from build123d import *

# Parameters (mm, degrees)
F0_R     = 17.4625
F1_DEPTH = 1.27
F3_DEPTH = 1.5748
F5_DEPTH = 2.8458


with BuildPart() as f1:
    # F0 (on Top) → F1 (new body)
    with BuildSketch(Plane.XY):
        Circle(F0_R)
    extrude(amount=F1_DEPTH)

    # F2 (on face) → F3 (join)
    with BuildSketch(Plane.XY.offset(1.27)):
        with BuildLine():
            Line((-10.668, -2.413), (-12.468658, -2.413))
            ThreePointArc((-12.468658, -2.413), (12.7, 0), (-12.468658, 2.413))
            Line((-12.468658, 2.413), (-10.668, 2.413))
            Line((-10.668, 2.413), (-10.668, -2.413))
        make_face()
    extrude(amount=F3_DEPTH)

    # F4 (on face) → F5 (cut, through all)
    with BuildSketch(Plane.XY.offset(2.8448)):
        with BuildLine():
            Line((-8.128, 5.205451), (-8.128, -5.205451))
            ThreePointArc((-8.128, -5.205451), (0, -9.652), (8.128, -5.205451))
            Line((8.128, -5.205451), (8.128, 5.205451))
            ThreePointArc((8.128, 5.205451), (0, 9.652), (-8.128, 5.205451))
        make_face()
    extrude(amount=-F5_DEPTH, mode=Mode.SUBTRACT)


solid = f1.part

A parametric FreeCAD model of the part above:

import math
import FreeCAD as App
import Part
import Sketcher
from FreeCAD import Vector
Q = App.Units.Quantity

doc = App.newDocument("Part")
body = doc.addObject("PartDesign::Body", "Body")

# Sketch on XY plane
sketch1 = body.newObject("Sketcher::SketchObject", "Sketch")
sketch1.AttachmentSupport = (doc.getObject("XY_Plane"), [""])
sketch1.MapMode = "FlatFace"
sketch1.addGeometry(Part.Circle(Vector(0, 0, 0), Vector(0, 0, 1), 17), False)
sketch1.addConstraint(Sketcher.Constraint("Coincident", 0, 3, -1, 1))
sketch1.addConstraint(Sketcher.Constraint("Diameter", 0, Q("1.375 in")))
pad1 = body.newObject("PartDesign::Pad", "Pad")
pad1.Profile = sketch1
pad1.Length = Q("0.05 in")

# Sketch on XY plane
sketch2 = body.newObject("Sketcher::SketchObject", "Sketch001")
sketch2.AttachmentSupport = (doc.getObject("XY_Plane"), [""])
sketch2.MapMode = "FlatFace"
sketch2.AttachmentOffset = App.Placement(Vector(0, 0, 0.05 * 25.4), App.Rotation())
sketch2.addGeometry(Part.LineSegment(Vector(-10.7, -2.4, 0), Vector(-12.5, -2.4, 0)), False)
sketch2.addGeometry(Part.ArcOfCircle(Part.Circle(Vector(0, 0, 0), Vector(0, 0, 1), 12.7), math.radians(-169), math.radians(169)), False)
sketch2.addGeometry(Part.LineSegment(Vector(-12.5, 2.4, 0), Vector(-10.7, 2.4, 0)), False)
sketch2.addGeometry(Part.LineSegment(Vector(-10.7, 2.4, 0), Vector(-10.7, -2.4, 0)), False)
sketch2.addConstraint(Sketcher.Constraint("Coincident", 0, 2, 1, 1))
sketch2.addConstraint(Sketcher.Constraint("Coincident", 1, 2, 2, 1))
sketch2.addConstraint(Sketcher.Constraint("Coincident", 2, 2, 3, 1))
sketch2.addConstraint(Sketcher.Constraint("Coincident", 3, 2, 0, 1))
sketch2.addConstraint(Sketcher.Constraint("Horizontal", 0))
sketch2.addConstraint(Sketcher.Constraint("Horizontal", 2))
sketch2.addConstraint(Sketcher.Constraint("Vertical", 3))
sketch2.addConstraint(Sketcher.Constraint("Coincident", 1, 3, -1, 1))
sketch2.addConstraint(Sketcher.Constraint("Vertical", 0, 2, 1, 2))
sketch2.addConstraint(Sketcher.Constraint("Radius", 1, Q("0.5 in")))
sketch2.addConstraint(Sketcher.Constraint("DistanceY", 3, 2, 3, 1, Q("0.19 in")))
sketch2.addConstraint(Sketcher.Constraint("DistanceX", 2, 2, -1, 1, Q("0.42 in")))
pad2 = body.newObject("PartDesign::Pad", "Pad001")
pad2.Profile = sketch2
pad2.Length = Q("0.062 in")

# Sketch on XY plane
sketch3 = body.newObject("Sketcher::SketchObject", "Sketch002")
sketch3.AttachmentSupport = (doc.getObject("XY_Plane"), [""])
sketch3.MapMode = "FlatFace"
sketch3.AttachmentOffset = App.Placement(Vector(0, 0, 0.112 * 25.4), App.Rotation())
sketch3.addGeometry(Part.LineSegment(Vector(-8, 5, 0), Vector(-8, -5, 0)), False)
sketch3.addGeometry(Part.ArcOfCircle(Part.Circle(Vector(0, 0, 0), Vector(0, 0, 1), 10), math.radians(-147), math.radians(-33)), False)
sketch3.addGeometry(Part.LineSegment(Vector(8, -5, 0), Vector(8, 5, 0)), False)
sketch3.addGeometry(Part.ArcOfCircle(Part.Circle(Vector(0, 0, 0), Vector(0, 0, 1), 10), math.radians(33), math.radians(147)), False)
sketch3.addConstraint(Sketcher.Constraint("Coincident", 0, 2, 1, 1))
sketch3.addConstraint(Sketcher.Constraint("Coincident", 1, 2, 2, 1))
sketch3.addConstraint(Sketcher.Constraint("Coincident", 2, 2, 3, 1))
sketch3.addConstraint(Sketcher.Constraint("Coincident", 3, 2, 0, 1))
sketch3.addConstraint(Sketcher.Constraint("Vertical", 0))
sketch3.addConstraint(Sketcher.Constraint("Vertical", 2))
sketch3.addConstraint(Sketcher.Constraint("Coincident", 1, 3, -1, 1))
sketch3.addConstraint(Sketcher.Constraint("Coincident", 3, 3, -1, 1))
sketch3.addConstraint(Sketcher.Constraint("Equal", 1, 3))
sketch3.addConstraint(Sketcher.Constraint("Horizontal", 0, 2, 1, 2))
sketch3.addConstraint(Sketcher.Constraint("Radius", 1, Q("0.38 in")))
sketch3.addConstraint(Sketcher.Constraint("DistanceX", 0, 2, -1, 1, Q("0.32 in")))
pocket1 = body.newObject("PartDesign::Pocket", "Pocket")
pocket1.Profile = sketch3
pocket1.Type = "ThroughAll"

doc.recompute()
